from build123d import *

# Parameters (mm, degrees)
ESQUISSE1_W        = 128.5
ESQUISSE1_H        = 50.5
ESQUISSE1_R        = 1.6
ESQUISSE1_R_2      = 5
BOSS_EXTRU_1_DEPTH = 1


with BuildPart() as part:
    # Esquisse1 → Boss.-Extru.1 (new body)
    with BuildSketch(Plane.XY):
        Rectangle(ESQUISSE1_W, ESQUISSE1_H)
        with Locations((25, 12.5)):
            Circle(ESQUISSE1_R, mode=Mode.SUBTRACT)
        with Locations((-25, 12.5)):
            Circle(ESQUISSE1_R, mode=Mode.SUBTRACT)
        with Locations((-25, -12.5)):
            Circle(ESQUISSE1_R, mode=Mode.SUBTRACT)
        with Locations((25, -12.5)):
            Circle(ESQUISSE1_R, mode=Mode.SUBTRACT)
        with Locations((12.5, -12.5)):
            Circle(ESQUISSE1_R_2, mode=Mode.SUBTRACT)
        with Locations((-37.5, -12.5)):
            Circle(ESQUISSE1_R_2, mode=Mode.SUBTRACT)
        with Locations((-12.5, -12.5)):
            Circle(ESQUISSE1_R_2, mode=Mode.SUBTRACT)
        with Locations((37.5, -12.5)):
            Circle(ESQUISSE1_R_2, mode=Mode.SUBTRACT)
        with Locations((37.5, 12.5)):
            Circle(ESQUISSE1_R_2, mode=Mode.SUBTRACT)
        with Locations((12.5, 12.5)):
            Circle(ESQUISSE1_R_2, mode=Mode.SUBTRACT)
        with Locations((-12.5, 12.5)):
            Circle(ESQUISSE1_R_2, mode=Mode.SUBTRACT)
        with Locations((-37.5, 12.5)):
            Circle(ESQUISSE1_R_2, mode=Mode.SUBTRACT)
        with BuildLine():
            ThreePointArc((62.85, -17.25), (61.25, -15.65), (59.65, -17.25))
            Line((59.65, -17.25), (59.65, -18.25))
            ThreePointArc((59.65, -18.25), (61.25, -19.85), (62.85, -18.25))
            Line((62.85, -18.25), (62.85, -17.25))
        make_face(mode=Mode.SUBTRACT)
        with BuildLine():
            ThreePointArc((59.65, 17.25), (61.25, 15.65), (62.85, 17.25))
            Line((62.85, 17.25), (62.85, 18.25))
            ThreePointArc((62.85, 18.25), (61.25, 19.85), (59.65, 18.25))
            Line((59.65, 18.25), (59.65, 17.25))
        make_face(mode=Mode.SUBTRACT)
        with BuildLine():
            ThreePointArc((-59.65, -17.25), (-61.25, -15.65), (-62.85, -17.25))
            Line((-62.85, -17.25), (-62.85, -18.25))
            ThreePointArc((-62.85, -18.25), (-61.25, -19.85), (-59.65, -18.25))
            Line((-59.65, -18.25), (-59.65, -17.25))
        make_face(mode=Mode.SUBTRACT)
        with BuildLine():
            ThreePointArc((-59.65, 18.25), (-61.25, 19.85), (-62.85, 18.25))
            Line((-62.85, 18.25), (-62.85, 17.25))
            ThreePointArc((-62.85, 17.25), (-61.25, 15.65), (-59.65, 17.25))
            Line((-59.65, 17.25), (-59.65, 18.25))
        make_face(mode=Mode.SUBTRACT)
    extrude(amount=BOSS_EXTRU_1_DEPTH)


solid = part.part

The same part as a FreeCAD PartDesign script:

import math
import FreeCAD as App
import Part
import Sketcher
from FreeCAD import Vector


def add_polygon(sketch, points):
    """Adds a closed chain of lines whose ends are joined by coincident constraints."""
    first, n = sketch.GeometryCount, len(points)
    for a, b in zip(points, points[1:] + points[:1]):
        sketch.addGeometry(Part.LineSegment(App.Vector(*a, 0), App.Vector(*b, 0)), False)
    for i in range(n):
        sketch.addConstraint(Sketcher.Constraint("Coincident", first + i, 2, first + (i + 1) % n, 1))

doc = App.newDocument("Part")
params = doc.addObject("Spreadsheet::Sheet", "Params")
for row, (alias, value) in enumerate([
    ("sketch1_diameter", "10 mm"),
    ("sketch1_diameter2", "3.2 mm"),
    ("sketch1_height", "1 mm"),
    ("sketch1_width", "128.5 mm"),
    ("sketch1_height2", "50.5 mm"),
    ("pad1_length", "1 mm"),
], start=1):
    params.set(f"A{row}", alias)
    params.set(f"B{row}", "=" + value)
    params.setAlias(f"B{row}", alias)

body = doc.addObject("PartDesign::Body", "Body")

# Sketch on XY plane
sketch1 = body.newObject("Sketcher::SketchObject", "Sketch")
sketch1.AttachmentSupport = (doc.getObject("XY_Plane"), [""])
sketch1.MapMode = "FlatFace"
add_polygon(sketch1, [(-64.25, 25.25), (-64.25, -25.25), (64.25, -25.25), (64.25, 25.25)])  # lines 0-3
sketch1.addGeometry(Part.ArcOfCircle(Part.Circle(Vector(-61.25, -17.25, 0), Vector(0, 0, 1), 1.6), math.radians(0), math.radians(180)), False)  # 4
sketch1.addGeometry(Part.LineSegment(Vector(-59.65, -17.25, 0), Vector(-59.65, -18.25, 0)), False)  # 5
sketch1.addGeometry(Part.ArcOfCircle(Part.Circle(Vector(-61.25, -18.25, 0), Vector(0, 0, 1), 1.6), math.radians(180), math.radians(360)), False)  # 6
sketch1.addGeometry(Part.LineSegment(Vector(-62.85, -18.25, 0), Vector(-62.85, -17.25, 0)), False)  # 7
sketch1.addGeometry(Part.Circle(Vector(-37.5, -12.5, 0), Vector(0, 0, 1), 5), False)  # 8
sketch1.addGeometry(Part.Circle(Vector(-25, -12.5, 0), Vector(0, 0, 1), 1.6), False)  # 9
sketch1.addGeometry(Part.Circle(Vector(-12.5, -12.5, 0), Vector(0, 0, 1), 5), False)  # 10
sketch1.addGeometry(Part.Circle(Vector(12.5, -12.5, 0), Vector(0, 0, 1), 5), False)  # 11
sketch1.addGeometry(Part.Circle(Vector(25, -12.5, 0), Vector(0, 0, 1), 1.6), False)  # 12
sketch1.addGeometry(Part.ArcOfCircle(Part.Circle(Vector(61.25, -17.25, 0), Vector(0, 0, 1), 1.6), math.radians(0), math.radians(180)), False)  # 13
sketch1.addGeometry(Part.LineSegment(Vector(62.85, -17.25, 0), Vector(62.85, -18.25, 0)), False)  # 14
sketch1.addGeometry(Part.ArcOfCircle(Part.Circle(Vector(61.25, -18.25, 0), Vector(0, 0, 1), 1.6), math.radians(180), math.radians(360)), False)  # 15
sketch1.addGeometry(Part.LineSegment(Vector(59.65, -18.25, 0), Vector(59.65, -17.25, 0)), False)  # 16
sketch1.addGeometry(Part.Circle(Vector(37.5, -12.5, 0), Vector(0, 0, 1), 5), False)  # 17
sketch1.addGeometry(Part.Circle(Vector(-37.5, 12.5, 0), Vector(0, 0, 1), 5), False)  # 18
sketch1.addGeometry(Part.ArcOfCircle(Part.Circle(Vector(-61.25, 18.25, 0), Vector(0, 0, 1), 1.6), math.radians(0), math.radians(180)), False)  # 19
sketch1.addGeometry(Part.LineSegment(Vector(-59.65, 18.25, 0), Vector(-59.65, 17.25, 0)), False)  # 20
sketch1.addGeometry(Part.ArcOfCircle(Part.Circle(Vector(-61.25, 17.25, 0), Vector(0, 0, 1), 1.6), math.radians(180), math.radians(360)), False)  # 21
sketch1.addGeometry(Part.LineSegment(Vector(-62.85, 17.25, 0), Vector(-62.85, 18.25, 0)), False)  # 22
sketch1.addGeometry(Part.Circle(Vector(-25, 12.5, 0), Vector(0, 0, 1), 1.6), False)  # 23
sketch1.addGeometry(Part.Circle(Vector(-12.5, 12.5, 0), Vector(0, 0, 1), 5), False)  # 24
sketch1.addGeometry(Part.Circle(Vector(12.5, 12.5, 0), Vector(0, 0, 1), 5), False)  # 25
sketch1.addGeometry(Part.Circle(Vector(25, 12.5, 0), Vector(0, 0, 1), 1.6), False)  # 26
sketch1.addGeometry(Part.Circle(Vector(37.5, 12.5, 0), Vector(0, 0, 1), 5), False)  # 27
sketch1.addGeometry(Part.ArcOfCircle(Part.Circle(Vector(61.25, 17.25, 0), Vector(0, 0, 1), 1.6), math.radians(180), math.radians(360)), False)  # 28
sketch1.addGeometry(Part.LineSegment(Vector(59.65, 17.25, 0), Vector(59.65, 18.25, 0)), False)  # 29
sketch1.addGeometry(Part.ArcOfCircle(Part.Circle(Vector(61.25, 18.25, 0), Vector(0, 0, 1), 1.6), math.radians(0), math.radians(180)), False)  # 30
sketch1.addGeometry(Part.LineSegment(Vector(62.85, 18.25, 0), Vector(62.85, 17.25, 0)), False)  # 31
sketch1.addConstraint([
    Sketcher.Constraint("Tangent", 4, 1, 5, 1),
    Sketcher.Constraint("Tangent", 5, 2, 6, 2),
    Sketcher.Constraint("Tangent", 6, 1, 7, 1),
    Sketcher.Constraint("Tangent", 7, 2, 4, 2),
    Sketcher.Constraint("Tangent", 13, 1, 14, 1),
    Sketcher.Constraint("Tangent", 14, 2, 15, 2),
    Sketcher.Constraint("Tangent", 15, 1, 16, 1),
    Sketcher.Constraint("Tangent", 16, 2, 13, 2),
    Sketcher.Constraint("Tangent", 19, 1, 20, 1),
    Sketcher.Constraint("Tangent", 20, 2, 21, 2),
    Sketcher.Constraint("Tangent", 21, 1, 22, 1),
    Sketcher.Constraint("Tangent", 22, 2, 19, 2),
    Sketcher.Constraint("Tangent", 28, 1, 29, 1),
    Sketcher.Constraint("Tangent", 29, 2, 30, 2),
    Sketcher.Constraint("Tangent", 30, 1, 31, 1),
    Sketcher.Constraint("Tangent", 31, 2, 28, 2),
    Sketcher.Constraint("Vertical", 0),
    Sketcher.Constraint("Horizontal", 1),
    Sketcher.Constraint("Vertical", 2),
    Sketcher.Constraint("Horizontal", 3),
    Sketcher.Constraint("Vertical", 5),
    Sketcher.Constraint("Vertical", 7),
    Sketcher.Constraint("Vertical", 14),
    Sketcher.Constraint("Vertical", 16),
    Sketcher.Constraint("Vertical", 20),
    Sketcher.Constraint("Vertical", 22),
    Sketcher.Constraint("Vertical", 29),
    Sketcher.Constraint("Vertical", 31),
    Sketcher.Constraint("Equal", 6, 9),
    Sketcher.Constraint("Equal", 8, 10),
    Sketcher.Constraint("Equal", 10, 11),
    Sketcher.Constraint("Equal", 9, 12),
    Sketcher.Constraint("Equal", 12, 13),
    Sketcher.Constraint("Equal", 11, 17),
    Sketcher.Constraint("Equal", 17, 18),
    Sketcher.Constraint("Equal", 15, 19),
    Sketcher.Constraint("Equal", 21, 23),
    Sketcher.Constraint("Equal", 18, 24),
    Sketcher.Constraint("Equal", 24, 25),
    Sketcher.Constraint("Equal", 23, 26),
    Sketcher.Constraint("Equal", 25, 27),
    Sketcher.Constraint("Equal", 26, 28),
    Sketcher.Constraint("Symmetric", 17, 3, 18, 3, -1, 1),
    Sketcher.Constraint("Symmetric", 15, 3, 19, 3, -1, 1),
    Sketcher.Constraint("Symmetric", 12, 3, 23, 3, -1, 1),
    Sketcher.Constraint("Symmetric", 11, 3, 24, 3, -1, 1),
    Sketcher.Constraint("Symmetric", 10, 3, 25, 3, -1, 1),
    Sketcher.Constraint("Symmetric", 9, 3, 26, 3, -1, 1),
    Sketcher.Constraint("Symmetric", 8, 3, 27, 3, -1, 1),
    Sketcher.Constraint("Symmetric", 4, 3, 28, 3, -1, 1),
    Sketcher.Constraint("Symmetric", 0, 2, 2, 2, -1, 1),
    Sketcher.Constraint("Symmetric", 10, 3, 11, 3, -2),
    Sketcher.Constraint("Symmetric", 9, 3, 12, 3, -2),
    Sketcher.Constraint("Symmetric", 4, 3, 13, 3, -2),
    Sketcher.Constraint("Symmetric", 8, 3, 17, 3, -2),
    Sketcher.Constraint("Horizontal", 8, 3, 9, 3),
    Sketcher.Constraint("Horizontal", 9, 3, 10, 3),
    Sketcher.Constraint("Horizontal", 6, 3, 15, 3),
    Sketcher.Constraint("Horizontal", 21, 3, 28, 3),
    Sketcher.Constraint("Horizontal", 19, 3, 30, 3),
    Sketcher.Constraint("Diameter", 8, 10.0),
    Sketcher.Constraint("Diameter", 9, 3.2),
    Sketcher.Constraint("DistanceY", 5, 2, 5, 1, 1.0),
    Sketcher.Constraint("DistanceX", 1, 1, 1, 2, 128.5),
    Sketcher.Constraint("DistanceY", 0, 2, 0, 1, 50.5),
    Sketcher.Constraint("DistanceX", 9, 3, -1, 1, 25.0),
    Sketcher.Constraint("DistanceX", 8, 3, 10, 3, 25.0),
    Sketcher.Constraint("DistanceX", 10, 3, 11, 3, 25.0),
    Sketcher.Constraint("DistanceY", 8, 3, 18, 3, 25.0),
    Sketcher.Constraint("DistanceX", 0, 2, 6, 3, 3.0),
    Sketcher.Constraint("DistanceY", 0, 2, 6, 3, 7.0),
])
sketch1.setExpression("Constraints[64]", "Params.sketch1_diameter")
sketch1.setExpression("Constraints[65]", "Params.sketch1_diameter2")
sketch1.setExpression("Constraints[66]", "Params.sketch1_height")
sketch1.setExpression("Constraints[67]", "Params.sketch1_width")
sketch1.setExpression("Constraints[68]", "Params.sketch1_height2")
pad1 = body.newObject("PartDesign::Pad", "Pad")
pad1.Profile = sketch1
pad1.setExpression("Length", "Params.pad1_length")

doc.recompute()
